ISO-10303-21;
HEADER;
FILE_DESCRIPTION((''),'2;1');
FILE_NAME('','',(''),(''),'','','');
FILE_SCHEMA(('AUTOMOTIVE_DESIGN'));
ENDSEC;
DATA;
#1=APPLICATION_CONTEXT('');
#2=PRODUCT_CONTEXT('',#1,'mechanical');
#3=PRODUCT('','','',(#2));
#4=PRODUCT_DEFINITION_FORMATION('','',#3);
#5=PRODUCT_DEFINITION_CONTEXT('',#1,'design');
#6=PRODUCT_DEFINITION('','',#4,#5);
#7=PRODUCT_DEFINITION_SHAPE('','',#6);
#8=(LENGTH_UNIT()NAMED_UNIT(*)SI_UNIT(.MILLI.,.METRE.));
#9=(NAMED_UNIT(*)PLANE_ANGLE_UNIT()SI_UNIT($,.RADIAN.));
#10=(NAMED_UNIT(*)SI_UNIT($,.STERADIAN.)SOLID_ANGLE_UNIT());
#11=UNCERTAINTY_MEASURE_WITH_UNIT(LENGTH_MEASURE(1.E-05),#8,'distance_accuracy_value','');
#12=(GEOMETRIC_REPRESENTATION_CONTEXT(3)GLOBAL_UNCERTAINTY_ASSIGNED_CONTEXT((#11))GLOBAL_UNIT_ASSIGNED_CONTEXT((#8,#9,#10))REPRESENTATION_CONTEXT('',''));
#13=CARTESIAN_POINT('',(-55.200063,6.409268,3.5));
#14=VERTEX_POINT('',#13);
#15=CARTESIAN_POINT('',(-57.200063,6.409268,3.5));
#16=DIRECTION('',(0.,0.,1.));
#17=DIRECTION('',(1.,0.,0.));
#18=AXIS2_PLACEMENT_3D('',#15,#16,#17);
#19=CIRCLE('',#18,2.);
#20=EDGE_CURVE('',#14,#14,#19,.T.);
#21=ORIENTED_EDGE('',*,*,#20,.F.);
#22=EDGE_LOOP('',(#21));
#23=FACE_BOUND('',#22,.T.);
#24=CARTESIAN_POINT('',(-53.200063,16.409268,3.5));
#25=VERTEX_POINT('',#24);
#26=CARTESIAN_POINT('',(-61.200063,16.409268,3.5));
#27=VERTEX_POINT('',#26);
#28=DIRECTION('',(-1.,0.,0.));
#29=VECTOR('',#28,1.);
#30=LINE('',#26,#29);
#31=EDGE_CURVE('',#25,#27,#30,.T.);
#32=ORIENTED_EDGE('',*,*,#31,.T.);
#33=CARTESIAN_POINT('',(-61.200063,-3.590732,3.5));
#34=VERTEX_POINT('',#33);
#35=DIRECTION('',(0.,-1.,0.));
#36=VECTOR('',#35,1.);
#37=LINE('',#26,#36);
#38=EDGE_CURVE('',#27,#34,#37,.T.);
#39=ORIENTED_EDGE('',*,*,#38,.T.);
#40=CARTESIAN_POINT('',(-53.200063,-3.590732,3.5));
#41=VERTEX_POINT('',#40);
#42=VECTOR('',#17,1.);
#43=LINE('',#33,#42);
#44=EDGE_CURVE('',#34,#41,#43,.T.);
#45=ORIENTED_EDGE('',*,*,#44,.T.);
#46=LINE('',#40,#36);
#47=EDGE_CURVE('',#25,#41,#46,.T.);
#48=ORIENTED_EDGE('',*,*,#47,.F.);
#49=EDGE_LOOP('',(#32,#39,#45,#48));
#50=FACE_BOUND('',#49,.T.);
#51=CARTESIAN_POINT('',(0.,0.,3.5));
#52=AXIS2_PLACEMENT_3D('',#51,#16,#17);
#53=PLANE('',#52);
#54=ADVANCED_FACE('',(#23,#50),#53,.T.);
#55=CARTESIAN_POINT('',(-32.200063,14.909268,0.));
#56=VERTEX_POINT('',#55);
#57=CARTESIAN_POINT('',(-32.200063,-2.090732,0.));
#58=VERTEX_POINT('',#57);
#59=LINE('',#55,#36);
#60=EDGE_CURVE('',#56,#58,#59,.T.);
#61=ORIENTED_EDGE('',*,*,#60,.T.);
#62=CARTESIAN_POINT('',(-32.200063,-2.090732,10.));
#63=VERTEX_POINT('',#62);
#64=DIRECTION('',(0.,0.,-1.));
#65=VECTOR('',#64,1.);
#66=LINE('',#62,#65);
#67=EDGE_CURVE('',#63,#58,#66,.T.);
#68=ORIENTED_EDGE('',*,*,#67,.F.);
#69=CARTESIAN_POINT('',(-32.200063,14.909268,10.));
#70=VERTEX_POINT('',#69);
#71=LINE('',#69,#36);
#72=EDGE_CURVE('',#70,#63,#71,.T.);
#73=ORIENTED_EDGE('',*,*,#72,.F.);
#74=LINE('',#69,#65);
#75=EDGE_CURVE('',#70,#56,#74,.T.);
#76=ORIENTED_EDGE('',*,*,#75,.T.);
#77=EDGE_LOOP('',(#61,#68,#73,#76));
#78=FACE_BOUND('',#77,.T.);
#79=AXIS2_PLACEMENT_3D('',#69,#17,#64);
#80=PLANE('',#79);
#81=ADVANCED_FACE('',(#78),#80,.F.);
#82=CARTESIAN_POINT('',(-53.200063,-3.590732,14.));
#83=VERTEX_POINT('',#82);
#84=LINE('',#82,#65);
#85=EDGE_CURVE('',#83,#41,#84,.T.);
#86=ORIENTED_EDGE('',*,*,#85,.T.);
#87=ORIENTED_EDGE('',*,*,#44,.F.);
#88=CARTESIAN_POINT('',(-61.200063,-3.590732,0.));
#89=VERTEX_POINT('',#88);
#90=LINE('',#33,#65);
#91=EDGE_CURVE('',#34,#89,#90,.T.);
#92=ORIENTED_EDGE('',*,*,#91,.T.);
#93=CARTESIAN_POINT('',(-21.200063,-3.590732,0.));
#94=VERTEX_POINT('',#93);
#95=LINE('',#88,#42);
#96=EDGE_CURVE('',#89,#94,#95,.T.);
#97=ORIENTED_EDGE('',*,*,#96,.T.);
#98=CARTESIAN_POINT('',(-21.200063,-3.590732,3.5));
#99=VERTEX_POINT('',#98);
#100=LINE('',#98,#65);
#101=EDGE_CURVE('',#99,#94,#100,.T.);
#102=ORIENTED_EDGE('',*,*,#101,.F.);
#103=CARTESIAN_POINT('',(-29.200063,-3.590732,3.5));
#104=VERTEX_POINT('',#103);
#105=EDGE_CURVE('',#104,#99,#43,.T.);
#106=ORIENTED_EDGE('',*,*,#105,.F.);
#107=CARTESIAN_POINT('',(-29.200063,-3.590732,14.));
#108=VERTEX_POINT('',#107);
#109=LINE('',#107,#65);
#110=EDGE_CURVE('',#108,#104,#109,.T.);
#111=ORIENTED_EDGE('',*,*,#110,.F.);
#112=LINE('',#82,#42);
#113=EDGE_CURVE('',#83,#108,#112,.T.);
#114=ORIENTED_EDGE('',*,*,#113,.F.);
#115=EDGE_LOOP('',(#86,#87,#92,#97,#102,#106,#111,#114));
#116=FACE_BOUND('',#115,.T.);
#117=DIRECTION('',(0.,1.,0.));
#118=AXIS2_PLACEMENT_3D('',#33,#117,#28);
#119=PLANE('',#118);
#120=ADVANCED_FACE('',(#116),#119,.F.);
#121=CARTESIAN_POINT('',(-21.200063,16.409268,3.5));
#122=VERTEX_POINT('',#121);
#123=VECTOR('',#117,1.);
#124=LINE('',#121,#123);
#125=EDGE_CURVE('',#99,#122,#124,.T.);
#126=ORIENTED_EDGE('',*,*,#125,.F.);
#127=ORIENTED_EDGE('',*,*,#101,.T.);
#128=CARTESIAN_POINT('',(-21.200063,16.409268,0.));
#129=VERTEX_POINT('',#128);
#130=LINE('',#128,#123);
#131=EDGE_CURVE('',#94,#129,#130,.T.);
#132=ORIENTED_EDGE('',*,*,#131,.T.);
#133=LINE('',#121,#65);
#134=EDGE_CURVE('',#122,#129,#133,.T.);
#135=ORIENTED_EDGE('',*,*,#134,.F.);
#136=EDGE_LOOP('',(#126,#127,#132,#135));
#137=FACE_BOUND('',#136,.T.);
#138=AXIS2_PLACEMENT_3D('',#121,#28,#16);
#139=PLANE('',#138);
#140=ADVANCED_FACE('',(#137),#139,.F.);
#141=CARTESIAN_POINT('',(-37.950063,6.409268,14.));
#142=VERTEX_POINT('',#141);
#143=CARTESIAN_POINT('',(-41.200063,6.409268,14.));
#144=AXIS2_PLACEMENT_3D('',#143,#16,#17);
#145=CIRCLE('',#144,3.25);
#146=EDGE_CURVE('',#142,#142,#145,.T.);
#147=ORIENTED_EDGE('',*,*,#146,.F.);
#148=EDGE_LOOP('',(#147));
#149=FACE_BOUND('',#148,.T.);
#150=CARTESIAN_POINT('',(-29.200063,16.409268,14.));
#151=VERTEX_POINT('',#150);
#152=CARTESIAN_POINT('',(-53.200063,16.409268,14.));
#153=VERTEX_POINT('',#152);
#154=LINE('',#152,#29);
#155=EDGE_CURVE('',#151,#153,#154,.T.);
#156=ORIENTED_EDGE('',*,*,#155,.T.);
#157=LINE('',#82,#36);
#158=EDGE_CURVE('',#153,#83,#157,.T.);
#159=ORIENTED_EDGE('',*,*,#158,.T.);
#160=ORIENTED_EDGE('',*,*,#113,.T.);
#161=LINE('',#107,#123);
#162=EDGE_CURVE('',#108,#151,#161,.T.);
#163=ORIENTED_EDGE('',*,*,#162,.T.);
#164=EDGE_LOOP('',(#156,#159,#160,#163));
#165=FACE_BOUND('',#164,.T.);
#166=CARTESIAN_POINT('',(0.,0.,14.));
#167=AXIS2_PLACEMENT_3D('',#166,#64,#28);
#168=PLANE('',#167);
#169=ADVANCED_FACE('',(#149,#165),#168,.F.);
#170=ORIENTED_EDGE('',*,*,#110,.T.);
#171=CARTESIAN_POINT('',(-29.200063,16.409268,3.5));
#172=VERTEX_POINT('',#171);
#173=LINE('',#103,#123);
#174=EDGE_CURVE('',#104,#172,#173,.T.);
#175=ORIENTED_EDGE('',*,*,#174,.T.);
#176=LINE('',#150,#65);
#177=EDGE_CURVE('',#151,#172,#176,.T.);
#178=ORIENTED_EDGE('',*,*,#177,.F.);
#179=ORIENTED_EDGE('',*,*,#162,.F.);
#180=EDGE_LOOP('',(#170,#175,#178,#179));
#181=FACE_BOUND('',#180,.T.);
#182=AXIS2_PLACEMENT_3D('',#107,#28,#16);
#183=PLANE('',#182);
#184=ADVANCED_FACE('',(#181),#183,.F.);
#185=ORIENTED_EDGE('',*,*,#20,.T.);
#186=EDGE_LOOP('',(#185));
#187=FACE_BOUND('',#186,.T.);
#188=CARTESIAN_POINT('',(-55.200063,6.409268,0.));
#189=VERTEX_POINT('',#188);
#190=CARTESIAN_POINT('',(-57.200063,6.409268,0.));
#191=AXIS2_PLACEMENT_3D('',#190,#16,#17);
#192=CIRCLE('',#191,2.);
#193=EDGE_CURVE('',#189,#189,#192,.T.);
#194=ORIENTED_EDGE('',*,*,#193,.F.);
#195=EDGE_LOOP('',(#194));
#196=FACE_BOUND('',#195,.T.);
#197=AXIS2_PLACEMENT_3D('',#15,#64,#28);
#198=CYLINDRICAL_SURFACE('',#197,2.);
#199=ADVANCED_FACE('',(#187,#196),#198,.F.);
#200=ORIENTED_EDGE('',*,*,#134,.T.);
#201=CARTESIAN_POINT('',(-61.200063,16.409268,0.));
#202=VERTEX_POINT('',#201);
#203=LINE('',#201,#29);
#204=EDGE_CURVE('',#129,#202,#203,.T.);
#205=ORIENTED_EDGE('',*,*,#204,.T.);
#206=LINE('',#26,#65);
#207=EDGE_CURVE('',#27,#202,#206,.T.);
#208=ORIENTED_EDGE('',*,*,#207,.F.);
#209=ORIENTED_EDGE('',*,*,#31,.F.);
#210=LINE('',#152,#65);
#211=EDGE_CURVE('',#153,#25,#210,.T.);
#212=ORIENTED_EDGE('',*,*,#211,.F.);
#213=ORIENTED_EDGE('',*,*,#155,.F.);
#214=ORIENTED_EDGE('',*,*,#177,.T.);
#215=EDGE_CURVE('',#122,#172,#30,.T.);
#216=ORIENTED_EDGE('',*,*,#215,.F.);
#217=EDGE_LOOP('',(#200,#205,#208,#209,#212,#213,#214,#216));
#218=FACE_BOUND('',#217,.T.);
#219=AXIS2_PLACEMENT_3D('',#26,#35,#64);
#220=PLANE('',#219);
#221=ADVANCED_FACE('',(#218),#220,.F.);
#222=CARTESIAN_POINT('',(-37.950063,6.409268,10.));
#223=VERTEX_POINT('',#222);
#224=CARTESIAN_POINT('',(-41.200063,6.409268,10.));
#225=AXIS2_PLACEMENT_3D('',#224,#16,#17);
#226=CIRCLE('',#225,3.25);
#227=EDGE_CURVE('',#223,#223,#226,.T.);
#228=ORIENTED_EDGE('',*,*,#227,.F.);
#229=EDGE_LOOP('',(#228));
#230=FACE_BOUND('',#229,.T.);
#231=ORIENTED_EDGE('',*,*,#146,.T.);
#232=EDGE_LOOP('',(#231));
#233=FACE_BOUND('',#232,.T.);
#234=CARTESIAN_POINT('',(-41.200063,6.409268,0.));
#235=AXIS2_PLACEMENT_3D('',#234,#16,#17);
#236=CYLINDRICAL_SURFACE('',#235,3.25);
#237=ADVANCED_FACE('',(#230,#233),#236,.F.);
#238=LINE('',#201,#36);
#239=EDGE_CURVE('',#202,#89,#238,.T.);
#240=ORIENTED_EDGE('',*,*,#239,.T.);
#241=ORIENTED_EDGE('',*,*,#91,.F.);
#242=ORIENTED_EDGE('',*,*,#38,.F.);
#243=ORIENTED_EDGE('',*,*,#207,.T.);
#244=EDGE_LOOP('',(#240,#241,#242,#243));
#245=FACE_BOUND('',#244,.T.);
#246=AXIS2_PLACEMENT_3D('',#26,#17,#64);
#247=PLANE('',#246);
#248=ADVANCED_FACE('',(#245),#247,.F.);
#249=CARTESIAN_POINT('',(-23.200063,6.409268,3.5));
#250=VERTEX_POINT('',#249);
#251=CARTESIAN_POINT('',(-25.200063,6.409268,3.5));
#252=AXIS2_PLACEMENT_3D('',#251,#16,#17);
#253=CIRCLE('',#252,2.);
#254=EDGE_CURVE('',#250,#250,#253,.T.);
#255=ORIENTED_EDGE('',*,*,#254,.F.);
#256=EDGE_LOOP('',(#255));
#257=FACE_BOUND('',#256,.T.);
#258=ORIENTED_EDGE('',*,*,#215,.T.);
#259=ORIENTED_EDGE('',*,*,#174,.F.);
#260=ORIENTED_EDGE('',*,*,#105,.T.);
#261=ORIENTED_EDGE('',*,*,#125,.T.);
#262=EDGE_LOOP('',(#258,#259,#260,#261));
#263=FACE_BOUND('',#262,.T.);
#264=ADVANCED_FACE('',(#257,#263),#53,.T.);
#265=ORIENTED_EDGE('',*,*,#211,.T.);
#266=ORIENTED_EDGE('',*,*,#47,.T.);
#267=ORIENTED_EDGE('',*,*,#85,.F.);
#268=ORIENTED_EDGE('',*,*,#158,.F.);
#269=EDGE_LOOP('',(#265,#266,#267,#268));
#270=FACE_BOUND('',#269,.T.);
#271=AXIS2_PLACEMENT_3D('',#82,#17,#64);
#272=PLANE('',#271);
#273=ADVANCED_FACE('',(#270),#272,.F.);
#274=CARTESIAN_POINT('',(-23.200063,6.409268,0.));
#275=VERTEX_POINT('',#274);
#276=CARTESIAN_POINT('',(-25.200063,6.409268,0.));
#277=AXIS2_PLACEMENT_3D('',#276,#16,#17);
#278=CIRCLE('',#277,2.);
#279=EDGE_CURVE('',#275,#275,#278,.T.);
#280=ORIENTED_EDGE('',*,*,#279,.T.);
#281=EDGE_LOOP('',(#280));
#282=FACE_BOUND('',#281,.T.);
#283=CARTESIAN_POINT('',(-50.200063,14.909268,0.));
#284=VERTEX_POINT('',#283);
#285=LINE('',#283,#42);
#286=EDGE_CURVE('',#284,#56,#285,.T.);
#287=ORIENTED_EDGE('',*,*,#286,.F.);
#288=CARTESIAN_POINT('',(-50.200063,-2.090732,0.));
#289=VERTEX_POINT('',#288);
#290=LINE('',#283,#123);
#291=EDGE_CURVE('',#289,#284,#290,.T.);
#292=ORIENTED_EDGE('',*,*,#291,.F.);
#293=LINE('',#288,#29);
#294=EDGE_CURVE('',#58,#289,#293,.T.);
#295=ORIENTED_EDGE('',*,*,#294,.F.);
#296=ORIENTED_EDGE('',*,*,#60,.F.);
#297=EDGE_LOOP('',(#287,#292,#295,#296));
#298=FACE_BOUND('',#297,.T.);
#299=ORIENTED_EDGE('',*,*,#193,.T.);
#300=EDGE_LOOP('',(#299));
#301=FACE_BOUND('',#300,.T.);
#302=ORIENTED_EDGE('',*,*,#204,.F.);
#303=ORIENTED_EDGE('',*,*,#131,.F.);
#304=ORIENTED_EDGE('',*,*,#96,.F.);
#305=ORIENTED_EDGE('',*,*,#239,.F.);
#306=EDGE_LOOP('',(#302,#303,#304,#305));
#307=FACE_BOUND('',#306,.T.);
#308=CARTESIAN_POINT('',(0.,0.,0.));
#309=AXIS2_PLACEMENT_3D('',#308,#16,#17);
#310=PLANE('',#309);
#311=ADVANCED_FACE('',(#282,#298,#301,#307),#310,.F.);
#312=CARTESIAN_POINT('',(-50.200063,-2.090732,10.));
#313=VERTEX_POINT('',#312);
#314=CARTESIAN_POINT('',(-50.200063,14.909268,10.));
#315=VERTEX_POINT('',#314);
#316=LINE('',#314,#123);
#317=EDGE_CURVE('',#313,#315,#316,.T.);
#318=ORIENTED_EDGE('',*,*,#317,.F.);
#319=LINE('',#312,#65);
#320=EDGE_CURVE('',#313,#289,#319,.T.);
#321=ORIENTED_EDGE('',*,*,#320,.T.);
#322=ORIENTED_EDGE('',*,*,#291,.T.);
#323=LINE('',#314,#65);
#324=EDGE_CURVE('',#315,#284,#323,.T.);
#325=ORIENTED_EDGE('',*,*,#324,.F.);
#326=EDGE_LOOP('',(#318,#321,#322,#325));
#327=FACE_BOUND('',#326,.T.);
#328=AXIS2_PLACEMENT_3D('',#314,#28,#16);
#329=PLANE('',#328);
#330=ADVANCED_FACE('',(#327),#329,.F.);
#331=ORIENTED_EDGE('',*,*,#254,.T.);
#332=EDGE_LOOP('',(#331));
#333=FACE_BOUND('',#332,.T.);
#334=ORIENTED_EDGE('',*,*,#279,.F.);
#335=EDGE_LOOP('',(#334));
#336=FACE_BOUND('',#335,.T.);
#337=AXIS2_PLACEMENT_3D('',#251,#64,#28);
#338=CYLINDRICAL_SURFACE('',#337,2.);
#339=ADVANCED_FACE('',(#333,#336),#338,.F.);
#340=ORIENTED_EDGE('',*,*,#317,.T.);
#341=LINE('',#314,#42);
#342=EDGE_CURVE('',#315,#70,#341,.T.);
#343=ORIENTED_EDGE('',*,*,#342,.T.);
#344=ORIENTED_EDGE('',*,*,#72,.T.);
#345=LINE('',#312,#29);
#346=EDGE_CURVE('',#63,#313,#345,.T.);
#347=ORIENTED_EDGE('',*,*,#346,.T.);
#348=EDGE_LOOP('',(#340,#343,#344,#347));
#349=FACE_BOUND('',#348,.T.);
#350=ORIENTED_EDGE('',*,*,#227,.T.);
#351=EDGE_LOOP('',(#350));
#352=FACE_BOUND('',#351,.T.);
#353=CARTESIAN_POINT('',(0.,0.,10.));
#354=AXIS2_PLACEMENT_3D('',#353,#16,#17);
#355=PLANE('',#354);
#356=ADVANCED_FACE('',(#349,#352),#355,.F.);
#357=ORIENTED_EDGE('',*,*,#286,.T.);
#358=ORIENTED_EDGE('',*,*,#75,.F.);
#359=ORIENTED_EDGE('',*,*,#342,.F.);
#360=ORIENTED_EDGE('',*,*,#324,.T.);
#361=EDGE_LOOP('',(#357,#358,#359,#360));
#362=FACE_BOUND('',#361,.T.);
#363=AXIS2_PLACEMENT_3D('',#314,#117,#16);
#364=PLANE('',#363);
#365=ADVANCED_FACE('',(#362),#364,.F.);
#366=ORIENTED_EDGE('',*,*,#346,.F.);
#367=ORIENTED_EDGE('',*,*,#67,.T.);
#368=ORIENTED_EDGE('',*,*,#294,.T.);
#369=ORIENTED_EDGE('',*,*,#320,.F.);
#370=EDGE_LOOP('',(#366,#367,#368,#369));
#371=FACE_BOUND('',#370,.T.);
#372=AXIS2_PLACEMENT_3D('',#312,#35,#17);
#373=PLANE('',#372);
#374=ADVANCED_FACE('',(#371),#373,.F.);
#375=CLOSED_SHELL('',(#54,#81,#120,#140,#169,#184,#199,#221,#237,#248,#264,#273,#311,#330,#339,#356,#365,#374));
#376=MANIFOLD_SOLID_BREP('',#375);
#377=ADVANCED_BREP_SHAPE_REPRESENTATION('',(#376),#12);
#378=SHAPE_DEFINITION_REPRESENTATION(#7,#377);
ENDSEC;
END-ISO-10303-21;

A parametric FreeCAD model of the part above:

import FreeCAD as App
import Part
import Sketcher

doc = App.newDocument("Part")
body = doc.addObject("PartDesign::Body", "Body")

# Sketch on XY plane
sketch1 = body.newObject("Sketcher::SketchObject", "Sketch")
sketch1.AttachmentSupport = (doc.getObject("XY_Plane"), [""])
sketch1.MapMode = "FlatFace"
sketch1.addGeometry([
    Part.LineSegment(App.Vector(-61.200063, 16.409268, 0), App.Vector(-61.200063, -3.590732, 0)),  # 0
    Part.LineSegment(App.Vector(-61.200063, -3.590732, 0), App.Vector(-21.200063, -3.590732, 0)),  # 1
    Part.LineSegment(App.Vector(-21.200063, -3.590732, 0), App.Vector(-21.200063, 16.409268, 0)),  # 2
    Part.LineSegment(App.Vector(-21.200063, 16.409268, 0), App.Vector(-61.200063, 16.409268, 0)),  # 3
    Part.Circle(App.Vector(-57.200063, 6.409268, 0), App.Vector(0, 0, 1), 2),  # 4
    Part.Circle(App.Vector(-25.200063, 6.409268, 0), App.Vector(0, 0, 1), 2),  # 5
], False)
sketch1.addConstraint([
    Sketcher.Constraint("Coincident", 0, 2, 1, 1),
    Sketcher.Constraint("Coincident", 1, 2, 2, 1),
    Sketcher.Constraint("Coincident", 2, 2, 3, 1),
    Sketcher.Constraint("Coincident", 3, 2, 0, 1),
    Sketcher.Constraint("Vertical", 0),
    Sketcher.Constraint("Horizontal", 1),
    Sketcher.Constraint("Vertical", 2),
    Sketcher.Constraint("Horizontal", 3),
    Sketcher.Constraint("Equal", 4, 5),
    Sketcher.Constraint("Horizontal", 4, 3, 5, 3),
    Sketcher.Constraint("Diameter", 4, 4.0),
    Sketcher.Constraint("DistanceX", 1, 1, 1, 2, 40.0),
    Sketcher.Constraint("DistanceY", 0, 2, 0, 1, 20.0),
    Sketcher.Constraint("DistanceX", 4, 3, 5, 3, 32.0),
    Sketcher.Constraint("DistanceX", 0, 2, 4, 3, 4.0),
    Sketcher.Constraint("DistanceY", 0, 2, 4, 3, 10.0),
    Sketcher.Constraint("DistanceY", -1, 1, 4, 3, 6.409268),
    Sketcher.Constraint("DistanceX", 4, 3, -1, 1, 57.200063),
])
pad1 = body.newObject("PartDesign::Pad", "Pad")
pad1.Profile = sketch1
pad1.Length = 3.5

# Sketch on XY plane
sketch2 = body.newObject("Sketcher::SketchObject", "Sketch001")
sketch2.AttachmentSupport = (doc.getObject("XY_Plane"), [""])
sketch2.MapMode = "FlatFace"
sketch2.AttachmentOffset = App.Placement(App.Vector(0, 0, 3.5), App.Rotation())
sketch2.addGeometry([
    Part.LineSegment(App.Vector(-53.200063, 16.409268, 0), App.Vector(-53.200063, -3.590732, 0)),
    Part.LineSegment(App.Vector(-53.200063, -3.590732, 0), App.Vector(-29.200063, -3.590732, 0)),
    Part.LineSegment(App.Vector(-29.200063, -3.590732, 0), App.Vector(-29.200063, 16.409268, 0)),
    Part.LineSegment(App.Vector(-29.200063, 16.409268, 0), App.Vector(-53.200063, 16.409268, 0)),
], False)
sketch2.addConstraint([
    Sketcher.Constraint("Coincident", 0, 2, 1, 1),
    Sketcher.Constraint("Coincident", 1, 2, 2, 1),
    Sketcher.Constraint("Coincident", 2, 2, 3, 1),
    Sketcher.Constraint("Coincident", 3, 2, 0, 1),
    Sketcher.Constraint("Vertical", 0),
    Sketcher.Constraint("Horizontal", 1),
    Sketcher.Constraint("Vertical", 2),
    Sketcher.Constraint("Horizontal", 3),
    Sketcher.Constraint("DistanceX", 1, 1, 1, 2, 24.0),
    Sketcher.Constraint("DistanceY", 0, 2, 0, 1, 20.0),
    Sketcher.Constraint("DistanceY", 0, 2, -1, 1, 3.590732),
    Sketcher.Constraint("DistanceX", 0, 2, -1, 1, 53.200063),
])
pad2 = body.newObject("PartDesign::Pad", "Pad001")
pad2.Profile = sketch2
pad2.Length = 10.5

# Sketch on XY plane
sketch3 = body.newObject("Sketcher::SketchObject", "Sketch002")
sketch3.AttachmentSupport = (doc.getObject("XY_Plane"), [""])
sketch3.MapMode = "FlatFace"
sketch3.addGeometry([
    Part.LineSegment(App.Vector(-32.200063, 14.909268, 0), App.Vector(-32.200063, -2.090732, 0)),
    Part.LineSegment(App.Vector(-32.200063, -2.090732, 0), App.Vector(-50.200063, -2.090732, 0)),
    Part.LineSegment(App.Vector(-50.200063, -2.090732, 0), App.Vector(-50.200063, 14.909268, 0)),
    Part.LineSegment(App.Vector(-50.200063, 14.909268, 0), App.Vector(-32.200063, 14.909268, 0)),
], False)
sketch3.addConstraint([
    Sketcher.Constraint("Coincident", 0, 2, 1, 1),
    Sketcher.Constraint("Coincident", 1, 2, 2, 1),
    Sketcher.Constraint("Coincident", 2, 2, 3, 1),
    Sketcher.Constraint("Coincident", 3, 2, 0, 1),
    Sketcher.Constraint("Vertical", 0),
    Sketcher.Constraint("Horizontal", 1),
    Sketcher.Constraint("Vertical", 2),
    Sketcher.Constraint("Horizontal", 3),
    Sketcher.Constraint("DistanceX", 1, 2, 1, 1, 18.0),
    Sketcher.Constraint("DistanceY", 0, 2, 0, 1, 17.0),
    Sketcher.Constraint("DistanceY", 0, 2, -1, 1, 2.090732),
    Sketcher.Constraint("DistanceX", 0, 2, -1, 1, 32.200063),
])
pocket1 = body.newObject("PartDesign::Pocket", "Pocket")
pocket1.Profile = sketch3
pocket1.Length = 10
pocket1.Reversed = True

# Sketch on XY plane
sketch4 = body.newObject("Sketcher::SketchObject", "Sketch003")
sketch4.AttachmentSupport = (doc.getObject("XY_Plane"), [""])
sketch4.MapMode = "FlatFace"
sketch4.AttachmentOffset = App.Placement(App.Vector(0, 0, 14), App.Rotation())
sketch4.addGeometry(Part.Circle(App.Vector(-41.200063, 6.409268, 0), App.Vector(0, 0, 1), 3.25), False)
sketch4.addConstraint([
    Sketcher.Constraint("Diameter", 0, 6.5),
    Sketcher.Constraint("DistanceY", -1, 1, 0, 3, 6.409268),
    Sketcher.Constraint("DistanceX", 0, 3, -1, 1, 41.200063),
])
pocket2 = body.newObject("PartDesign::Pocket", "Pocket001")
pocket2.Profile = sketch4
pocket2.Type = "ThroughAll"

doc.recompute()
